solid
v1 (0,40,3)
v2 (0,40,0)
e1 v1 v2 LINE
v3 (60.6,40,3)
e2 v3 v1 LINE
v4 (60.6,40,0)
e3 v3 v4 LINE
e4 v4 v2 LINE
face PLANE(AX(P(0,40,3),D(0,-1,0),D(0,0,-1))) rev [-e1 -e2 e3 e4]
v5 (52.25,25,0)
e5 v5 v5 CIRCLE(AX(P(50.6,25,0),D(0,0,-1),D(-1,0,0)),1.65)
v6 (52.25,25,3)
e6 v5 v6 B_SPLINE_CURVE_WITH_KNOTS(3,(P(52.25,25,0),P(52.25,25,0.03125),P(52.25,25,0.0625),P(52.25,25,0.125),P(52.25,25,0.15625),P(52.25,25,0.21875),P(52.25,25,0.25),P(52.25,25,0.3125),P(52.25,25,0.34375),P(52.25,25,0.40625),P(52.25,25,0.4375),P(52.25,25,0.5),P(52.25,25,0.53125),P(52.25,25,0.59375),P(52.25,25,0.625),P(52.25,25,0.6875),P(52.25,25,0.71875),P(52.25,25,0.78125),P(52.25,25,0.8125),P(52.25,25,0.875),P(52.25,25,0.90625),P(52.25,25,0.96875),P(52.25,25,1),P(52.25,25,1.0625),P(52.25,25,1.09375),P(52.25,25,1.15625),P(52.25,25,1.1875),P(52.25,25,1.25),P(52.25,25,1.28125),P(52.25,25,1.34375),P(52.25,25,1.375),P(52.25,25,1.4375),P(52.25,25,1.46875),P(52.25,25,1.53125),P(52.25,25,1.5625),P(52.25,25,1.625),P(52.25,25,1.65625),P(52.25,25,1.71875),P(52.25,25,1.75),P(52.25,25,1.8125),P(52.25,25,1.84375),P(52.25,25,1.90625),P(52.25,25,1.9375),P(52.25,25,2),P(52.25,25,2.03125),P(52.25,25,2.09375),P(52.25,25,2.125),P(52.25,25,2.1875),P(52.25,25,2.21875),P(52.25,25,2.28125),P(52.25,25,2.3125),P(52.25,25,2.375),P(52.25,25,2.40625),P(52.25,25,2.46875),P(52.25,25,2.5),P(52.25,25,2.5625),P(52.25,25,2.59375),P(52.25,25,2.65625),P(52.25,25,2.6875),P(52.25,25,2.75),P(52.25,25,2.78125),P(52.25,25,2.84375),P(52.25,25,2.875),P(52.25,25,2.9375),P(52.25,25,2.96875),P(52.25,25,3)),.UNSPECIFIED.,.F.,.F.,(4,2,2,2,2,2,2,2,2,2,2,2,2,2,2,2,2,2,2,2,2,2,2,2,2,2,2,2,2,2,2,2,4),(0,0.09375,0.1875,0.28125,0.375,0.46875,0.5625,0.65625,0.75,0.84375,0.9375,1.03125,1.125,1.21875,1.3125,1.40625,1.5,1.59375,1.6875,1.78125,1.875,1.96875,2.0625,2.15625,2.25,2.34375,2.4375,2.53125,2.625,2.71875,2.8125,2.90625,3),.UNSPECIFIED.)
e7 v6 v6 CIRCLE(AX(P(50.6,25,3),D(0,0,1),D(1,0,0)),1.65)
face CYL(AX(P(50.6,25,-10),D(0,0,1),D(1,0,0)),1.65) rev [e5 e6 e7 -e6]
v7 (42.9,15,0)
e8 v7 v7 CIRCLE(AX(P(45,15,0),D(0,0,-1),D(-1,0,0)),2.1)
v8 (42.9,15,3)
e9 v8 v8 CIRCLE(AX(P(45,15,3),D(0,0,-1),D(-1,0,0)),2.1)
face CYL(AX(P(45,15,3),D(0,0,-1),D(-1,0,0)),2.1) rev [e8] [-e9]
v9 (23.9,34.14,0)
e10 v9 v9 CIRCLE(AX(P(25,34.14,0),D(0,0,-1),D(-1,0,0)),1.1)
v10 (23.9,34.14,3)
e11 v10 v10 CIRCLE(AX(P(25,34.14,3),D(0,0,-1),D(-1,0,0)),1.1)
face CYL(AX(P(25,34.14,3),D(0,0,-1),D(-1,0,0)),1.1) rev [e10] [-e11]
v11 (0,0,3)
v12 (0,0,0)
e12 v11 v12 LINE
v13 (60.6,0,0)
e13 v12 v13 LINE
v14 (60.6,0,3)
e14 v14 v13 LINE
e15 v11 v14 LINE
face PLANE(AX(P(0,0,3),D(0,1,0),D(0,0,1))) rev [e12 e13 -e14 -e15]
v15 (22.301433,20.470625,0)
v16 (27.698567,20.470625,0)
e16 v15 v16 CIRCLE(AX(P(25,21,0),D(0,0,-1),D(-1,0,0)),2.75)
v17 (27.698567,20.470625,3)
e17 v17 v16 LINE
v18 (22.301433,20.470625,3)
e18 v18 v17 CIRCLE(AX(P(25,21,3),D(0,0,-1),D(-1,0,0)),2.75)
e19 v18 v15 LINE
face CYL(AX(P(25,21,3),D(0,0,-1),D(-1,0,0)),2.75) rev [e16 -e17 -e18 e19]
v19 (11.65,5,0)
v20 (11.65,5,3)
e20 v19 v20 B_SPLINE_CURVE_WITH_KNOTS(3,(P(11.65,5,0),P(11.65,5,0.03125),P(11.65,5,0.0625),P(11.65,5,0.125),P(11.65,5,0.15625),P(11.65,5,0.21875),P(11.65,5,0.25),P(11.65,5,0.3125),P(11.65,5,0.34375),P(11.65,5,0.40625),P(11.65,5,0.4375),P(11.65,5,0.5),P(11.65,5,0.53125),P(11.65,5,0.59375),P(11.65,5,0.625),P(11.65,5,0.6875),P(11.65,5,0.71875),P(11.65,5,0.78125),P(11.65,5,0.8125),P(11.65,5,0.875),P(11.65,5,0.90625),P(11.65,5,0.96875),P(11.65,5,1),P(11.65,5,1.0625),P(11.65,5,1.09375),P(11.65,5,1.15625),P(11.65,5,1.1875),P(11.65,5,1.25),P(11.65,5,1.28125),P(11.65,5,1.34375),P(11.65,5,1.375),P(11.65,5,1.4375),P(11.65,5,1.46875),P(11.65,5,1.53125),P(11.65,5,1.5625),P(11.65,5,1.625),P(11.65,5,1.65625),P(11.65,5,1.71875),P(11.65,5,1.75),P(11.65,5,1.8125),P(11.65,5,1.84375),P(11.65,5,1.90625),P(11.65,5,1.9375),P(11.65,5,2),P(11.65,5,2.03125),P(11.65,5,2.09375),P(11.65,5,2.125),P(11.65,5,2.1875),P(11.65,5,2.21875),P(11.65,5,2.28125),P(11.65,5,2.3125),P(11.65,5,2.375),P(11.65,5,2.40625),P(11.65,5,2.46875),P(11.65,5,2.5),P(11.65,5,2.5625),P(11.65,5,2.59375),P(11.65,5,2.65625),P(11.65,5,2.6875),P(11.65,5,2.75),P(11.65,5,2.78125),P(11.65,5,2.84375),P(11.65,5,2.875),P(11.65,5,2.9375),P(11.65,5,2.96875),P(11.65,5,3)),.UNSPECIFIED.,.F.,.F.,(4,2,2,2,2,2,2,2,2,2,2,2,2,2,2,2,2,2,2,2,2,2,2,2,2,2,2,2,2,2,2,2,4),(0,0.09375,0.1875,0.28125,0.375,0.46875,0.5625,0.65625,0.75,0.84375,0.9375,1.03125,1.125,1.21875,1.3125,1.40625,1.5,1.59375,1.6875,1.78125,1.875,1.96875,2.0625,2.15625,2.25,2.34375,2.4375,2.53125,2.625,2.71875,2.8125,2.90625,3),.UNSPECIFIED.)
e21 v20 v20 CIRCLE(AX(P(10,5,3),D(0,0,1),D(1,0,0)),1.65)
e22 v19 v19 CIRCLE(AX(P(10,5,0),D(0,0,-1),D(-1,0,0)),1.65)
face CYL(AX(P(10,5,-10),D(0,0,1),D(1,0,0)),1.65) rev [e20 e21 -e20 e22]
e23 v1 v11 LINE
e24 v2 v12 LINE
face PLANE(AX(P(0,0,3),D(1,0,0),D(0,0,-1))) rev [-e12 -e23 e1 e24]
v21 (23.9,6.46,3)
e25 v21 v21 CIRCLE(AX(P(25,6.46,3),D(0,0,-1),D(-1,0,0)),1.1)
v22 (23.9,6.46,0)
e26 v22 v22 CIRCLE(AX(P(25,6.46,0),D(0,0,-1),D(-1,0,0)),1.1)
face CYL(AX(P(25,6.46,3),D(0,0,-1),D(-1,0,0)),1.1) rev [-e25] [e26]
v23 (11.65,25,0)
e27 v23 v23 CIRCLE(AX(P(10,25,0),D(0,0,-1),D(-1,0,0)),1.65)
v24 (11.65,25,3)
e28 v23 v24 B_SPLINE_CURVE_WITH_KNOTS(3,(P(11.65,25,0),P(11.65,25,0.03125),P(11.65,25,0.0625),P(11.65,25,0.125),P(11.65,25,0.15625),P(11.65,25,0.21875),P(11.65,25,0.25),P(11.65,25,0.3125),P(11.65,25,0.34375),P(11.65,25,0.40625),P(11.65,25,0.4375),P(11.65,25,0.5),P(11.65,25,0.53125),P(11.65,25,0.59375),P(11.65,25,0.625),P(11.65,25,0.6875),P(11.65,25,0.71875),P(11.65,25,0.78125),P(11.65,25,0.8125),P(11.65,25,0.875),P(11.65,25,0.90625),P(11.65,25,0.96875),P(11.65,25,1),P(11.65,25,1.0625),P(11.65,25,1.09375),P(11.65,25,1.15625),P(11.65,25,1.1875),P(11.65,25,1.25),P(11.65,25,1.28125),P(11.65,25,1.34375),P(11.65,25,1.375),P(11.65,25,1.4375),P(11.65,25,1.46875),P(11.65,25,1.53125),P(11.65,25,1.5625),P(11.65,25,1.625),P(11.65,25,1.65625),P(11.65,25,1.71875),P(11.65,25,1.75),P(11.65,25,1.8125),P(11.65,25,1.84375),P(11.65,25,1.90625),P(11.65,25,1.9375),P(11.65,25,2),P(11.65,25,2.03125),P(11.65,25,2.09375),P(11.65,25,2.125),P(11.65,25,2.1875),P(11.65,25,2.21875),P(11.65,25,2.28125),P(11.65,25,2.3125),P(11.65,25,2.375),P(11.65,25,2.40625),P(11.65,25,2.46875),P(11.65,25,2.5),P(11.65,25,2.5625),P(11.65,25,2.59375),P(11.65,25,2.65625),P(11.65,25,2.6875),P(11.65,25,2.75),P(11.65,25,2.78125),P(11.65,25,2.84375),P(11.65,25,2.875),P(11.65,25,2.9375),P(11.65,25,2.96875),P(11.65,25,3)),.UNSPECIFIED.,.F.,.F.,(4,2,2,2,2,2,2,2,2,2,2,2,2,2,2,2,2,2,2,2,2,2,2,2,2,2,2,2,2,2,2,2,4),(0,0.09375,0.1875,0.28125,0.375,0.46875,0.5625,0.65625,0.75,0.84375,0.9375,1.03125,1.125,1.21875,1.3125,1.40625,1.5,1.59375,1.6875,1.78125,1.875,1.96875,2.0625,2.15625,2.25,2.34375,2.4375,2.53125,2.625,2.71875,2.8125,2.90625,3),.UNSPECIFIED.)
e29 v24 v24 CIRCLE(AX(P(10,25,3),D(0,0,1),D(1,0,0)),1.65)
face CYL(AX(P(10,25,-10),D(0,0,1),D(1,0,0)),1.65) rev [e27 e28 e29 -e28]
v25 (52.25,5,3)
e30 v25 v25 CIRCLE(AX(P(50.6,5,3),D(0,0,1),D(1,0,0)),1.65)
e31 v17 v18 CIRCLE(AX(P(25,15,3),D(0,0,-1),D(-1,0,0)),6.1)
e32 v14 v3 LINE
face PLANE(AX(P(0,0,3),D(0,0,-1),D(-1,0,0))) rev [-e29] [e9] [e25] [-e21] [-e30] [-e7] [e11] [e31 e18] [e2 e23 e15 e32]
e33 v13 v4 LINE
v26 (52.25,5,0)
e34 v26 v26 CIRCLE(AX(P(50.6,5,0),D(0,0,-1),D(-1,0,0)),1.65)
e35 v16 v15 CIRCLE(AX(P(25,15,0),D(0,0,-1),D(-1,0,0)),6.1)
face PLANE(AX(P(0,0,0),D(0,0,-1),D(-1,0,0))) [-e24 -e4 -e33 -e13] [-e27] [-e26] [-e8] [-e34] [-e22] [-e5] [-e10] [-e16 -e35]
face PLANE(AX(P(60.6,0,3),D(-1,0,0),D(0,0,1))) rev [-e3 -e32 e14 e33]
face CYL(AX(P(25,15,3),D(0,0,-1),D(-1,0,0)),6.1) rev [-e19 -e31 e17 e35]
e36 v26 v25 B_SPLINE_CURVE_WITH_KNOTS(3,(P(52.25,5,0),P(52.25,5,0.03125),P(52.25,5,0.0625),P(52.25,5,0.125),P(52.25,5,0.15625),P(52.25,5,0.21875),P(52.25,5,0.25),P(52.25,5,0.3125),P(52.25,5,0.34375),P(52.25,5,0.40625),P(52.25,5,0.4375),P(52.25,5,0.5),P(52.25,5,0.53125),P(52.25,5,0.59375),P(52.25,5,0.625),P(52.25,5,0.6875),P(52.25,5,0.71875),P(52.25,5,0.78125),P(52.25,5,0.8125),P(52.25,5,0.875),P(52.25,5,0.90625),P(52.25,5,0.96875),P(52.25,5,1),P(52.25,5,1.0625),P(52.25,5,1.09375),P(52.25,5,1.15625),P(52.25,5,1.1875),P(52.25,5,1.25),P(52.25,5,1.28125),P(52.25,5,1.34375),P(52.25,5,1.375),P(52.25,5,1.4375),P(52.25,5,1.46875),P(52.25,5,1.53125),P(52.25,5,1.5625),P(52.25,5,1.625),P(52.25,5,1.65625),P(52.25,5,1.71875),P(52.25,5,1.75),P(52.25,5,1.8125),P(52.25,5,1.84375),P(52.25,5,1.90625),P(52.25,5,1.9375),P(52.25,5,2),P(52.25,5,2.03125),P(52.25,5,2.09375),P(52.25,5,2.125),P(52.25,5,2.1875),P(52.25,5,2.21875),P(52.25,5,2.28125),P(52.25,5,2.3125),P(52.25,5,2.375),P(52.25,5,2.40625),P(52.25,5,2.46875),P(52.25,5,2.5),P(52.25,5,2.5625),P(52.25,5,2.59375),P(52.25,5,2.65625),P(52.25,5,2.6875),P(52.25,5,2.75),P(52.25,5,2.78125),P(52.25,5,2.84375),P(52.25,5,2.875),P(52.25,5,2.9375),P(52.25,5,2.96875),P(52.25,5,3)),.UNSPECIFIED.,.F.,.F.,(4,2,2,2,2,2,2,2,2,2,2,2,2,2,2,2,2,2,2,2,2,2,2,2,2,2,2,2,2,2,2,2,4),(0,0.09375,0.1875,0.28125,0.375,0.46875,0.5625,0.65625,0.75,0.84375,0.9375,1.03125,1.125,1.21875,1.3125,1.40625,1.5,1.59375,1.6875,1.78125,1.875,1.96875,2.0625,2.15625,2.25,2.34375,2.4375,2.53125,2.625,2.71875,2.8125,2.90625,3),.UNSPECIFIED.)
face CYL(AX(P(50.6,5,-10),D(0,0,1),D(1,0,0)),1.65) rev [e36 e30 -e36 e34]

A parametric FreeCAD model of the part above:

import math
import FreeCAD as App
import Part
import Sketcher

V = App.Vector
Q = App.Units.Quantity

doc = App.newDocument("Part")
params = doc.addObject("Spreadsheet::Sheet", "Params")
for row, (alias, value) in enumerate([
    ("sketch1_height", "40 mm"),
    ("sketch1_width", "60.6 mm"),
    ("pad1_length", "3 mm"),
    ("sketch2_diameter", "2.2 mm"),
    ("sketch2_diameter2", "4.2 mm"),
    ("sketch2_radius", "6.1 mm"),
    ("sketch2_radius2", "2.75 mm"),
    ("sketch3_diameter", "3.3 mm"),
    ("pocket2_length", "13 mm"),
], start=1):
    params.set(f"A{row}", alias)
    params.set(f"B{row}", "=" + value)
    params.setAlias(f"B{row}", alias)

body = doc.addObject("PartDesign::Body", "Body")

sketch1 = body.newObject("Sketcher::SketchObject", "Sketch")
sketch1.AttachmentSupport = (doc.getObject("XY_Plane"), [""])
sketch1.MapMode = "FlatFace"
sketch1.addGeometry([
    Part.LineSegment(V(0, 40, 0), V(0, 0, 0)),
    Part.LineSegment(V(0, 0, 0), V(61, 0, 0)),
    Part.LineSegment(V(61, 0, 0), V(61, 40, 0)),
    Part.LineSegment(V(61, 40, 0), V(0, 40, 0)),
], False)
sketch1.addConstraint([
    Sketcher.Constraint("Coincident", 0, 2, 1, 1),
    Sketcher.Constraint("Coincident", 1, 2, 2, 1),
    Sketcher.Constraint("Coincident", 2, 2, 3, 1),
    Sketcher.Constraint("Coincident", 3, 2, 0, 1),
    Sketcher.Constraint("Vertical", 0),
    Sketcher.Constraint("Horizontal", 1),
    Sketcher.Constraint("Vertical", 2),
    Sketcher.Constraint("Horizontal", 3),
    Sketcher.Constraint("Coincident", 0, 2, -1, 1),
    Sketcher.Constraint("DistanceY", 0, 2, 0, 1, Q("40 mm")),
    Sketcher.Constraint("DistanceX", 1, 1, 1, 2, Q("60.6 mm")),
])
sketch1.setExpression("Constraints[9]", "Params.sketch1_height")
sketch1.setExpression("Constraints[10]", "Params.sketch1_width")
pad1 = body.newObject("PartDesign::Pad", "Pad")
pad1.Profile = sketch1
pad1.setExpression("Length", "Params.pad1_length")

sketch2 = body.newObject("Sketcher::SketchObject", "Sketch001")
sketch2.AttachmentSupport = (doc.getObject("XY_Plane"), [""])
sketch2.MapMode = "FlatFace"
sketch2.addGeometry([
    Part.ArcOfCircle(Part.Circle(V(25, 15, 0), V(0, 0, 1), 6.1), math.radians(116), math.radians(424)),
    Part.ArcOfCircle(Part.Circle(V(25, 21, 0), V(0, 0, 1), 2.8), math.radians(-11), math.radians(191)),
    Part.Circle(V(25, 6.5, 0), V(0, 0, 1), 1.1),
    Part.Circle(V(25, 34.1, 0), V(0, 0, 1), 1.1),
    Part.Circle(V(45, 15, 0), V(0, 0, 1), 2.1),
], False)
sketch2.addConstraint([
    Sketcher.Constraint("Coincident", 0, 1, 1, 2),
    Sketcher.Constraint("Coincident", 1, 1, 0, 2),
    Sketcher.Constraint("Equal", 2, 3),
    Sketcher.Constraint("Horizontal", 0, 3, 4, 3),
    Sketcher.Constraint("Horizontal", 0, 1, 1, 1),
    Sketcher.Constraint("Vertical", 1, 3, 2, 3),
    Sketcher.Constraint("Vertical", 2, 3, 3, 3),
    Sketcher.Constraint("Diameter", 2, Q("2.2 mm")),
    Sketcher.Constraint("Diameter", 4, Q("4.2 mm")),
    Sketcher.Constraint("Radius", 0, Q("6.1 mm")),
    Sketcher.Constraint("Radius", 1, Q("2.75 mm")),
    Sketcher.Constraint("DistanceX", -1, 1, 0, 3, Q("25 mm")),
    Sketcher.Constraint("DistanceY", -1, 1, 0, 3, Q("15 mm")),
    Sketcher.Constraint("DistanceY", -1, 1, 1, 3, Q("21 mm")),
    Sketcher.Constraint("DistanceX", -1, 1, 4, 3, Q("45 mm")),
    Sketcher.Constraint("DistanceY", -1, 1, 2, 3, Q("6.46 mm")),
    Sketcher.Constraint("DistanceY", -1, 1, 3, 3, Q("34.14 mm")),
])
sketch2.setExpression("Constraints[7]", "Params.sketch2_diameter")
sketch2.setExpression("Constraints[8]", "Params.sketch2_diameter2")
sketch2.setExpression("Constraints[9]", "Params.sketch2_radius")
sketch2.setExpression("Constraints[10]", "Params.sketch2_radius2")
pocket1 = body.newObject("PartDesign::Pocket", "Pocket")
pocket1.Profile = sketch2
pocket1.Type = "ThroughAll"
pocket1.Reversed = True

sketch3 = body.newObject("Sketcher::SketchObject", "Sketch002")
sketch3.AttachmentSupport = (doc.getObject("XY_Plane"), [""])
sketch3.MapMode = "FlatFace"
sketch3.AttachmentOffset = App.Placement(V(0, 0, 3), App.Rotation())
sketch3.addGeometry([
    Part.Circle(V(50.6, 5, 0), V(0, 0, 1), 1.6),
    Part.Circle(V(50.6, 25, 0), V(0, 0, 1), 1.6),
    Part.Circle(V(10, 25, 0), V(0, 0, 1), 1.6),
    Part.Circle(V(10, 5, 0), V(0, 0, 1), 1.6),
], False)
sketch3.addConstraint([
    Sketcher.Constraint("Equal", 0, 1),
    Sketcher.Constraint("Equal", 1, 2),
    Sketcher.Constraint("Equal", 2, 3),
    Sketcher.Constraint("Horizontal", 1, 3, 2, 3),
    Sketcher.Constraint("Horizontal", 0, 3, 3, 3),
    Sketcher.Constraint("Vertical", 0, 3, 1, 3),
    Sketcher.Constraint("Vertical", 2, 3, 3, 3),
    Sketcher.Constraint("Diameter", 0, Q("3.3 mm")),
    Sketcher.Constraint("DistanceY", -1, 1, 0, 3, Q("5 mm")),
    Sketcher.Constraint("DistanceY", -1, 1, 1, 3, Q("25 mm")),
    Sketcher.Constraint("DistanceX", -1, 1, 2, 3, Q("10 mm")),
    Sketcher.Constraint("DistanceX", -1, 1, 0, 3, Q("50.6 mm")),
])
sketch3.setExpression("Constraints[7]", "Params.sketch3_diameter")
pocket2 = body.newObject("PartDesign::Pocket", "Pocket001")
pocket2.Profile = sketch3
pocket2.setExpression("Length", "Params.pocket2_length")

doc.recompute()
